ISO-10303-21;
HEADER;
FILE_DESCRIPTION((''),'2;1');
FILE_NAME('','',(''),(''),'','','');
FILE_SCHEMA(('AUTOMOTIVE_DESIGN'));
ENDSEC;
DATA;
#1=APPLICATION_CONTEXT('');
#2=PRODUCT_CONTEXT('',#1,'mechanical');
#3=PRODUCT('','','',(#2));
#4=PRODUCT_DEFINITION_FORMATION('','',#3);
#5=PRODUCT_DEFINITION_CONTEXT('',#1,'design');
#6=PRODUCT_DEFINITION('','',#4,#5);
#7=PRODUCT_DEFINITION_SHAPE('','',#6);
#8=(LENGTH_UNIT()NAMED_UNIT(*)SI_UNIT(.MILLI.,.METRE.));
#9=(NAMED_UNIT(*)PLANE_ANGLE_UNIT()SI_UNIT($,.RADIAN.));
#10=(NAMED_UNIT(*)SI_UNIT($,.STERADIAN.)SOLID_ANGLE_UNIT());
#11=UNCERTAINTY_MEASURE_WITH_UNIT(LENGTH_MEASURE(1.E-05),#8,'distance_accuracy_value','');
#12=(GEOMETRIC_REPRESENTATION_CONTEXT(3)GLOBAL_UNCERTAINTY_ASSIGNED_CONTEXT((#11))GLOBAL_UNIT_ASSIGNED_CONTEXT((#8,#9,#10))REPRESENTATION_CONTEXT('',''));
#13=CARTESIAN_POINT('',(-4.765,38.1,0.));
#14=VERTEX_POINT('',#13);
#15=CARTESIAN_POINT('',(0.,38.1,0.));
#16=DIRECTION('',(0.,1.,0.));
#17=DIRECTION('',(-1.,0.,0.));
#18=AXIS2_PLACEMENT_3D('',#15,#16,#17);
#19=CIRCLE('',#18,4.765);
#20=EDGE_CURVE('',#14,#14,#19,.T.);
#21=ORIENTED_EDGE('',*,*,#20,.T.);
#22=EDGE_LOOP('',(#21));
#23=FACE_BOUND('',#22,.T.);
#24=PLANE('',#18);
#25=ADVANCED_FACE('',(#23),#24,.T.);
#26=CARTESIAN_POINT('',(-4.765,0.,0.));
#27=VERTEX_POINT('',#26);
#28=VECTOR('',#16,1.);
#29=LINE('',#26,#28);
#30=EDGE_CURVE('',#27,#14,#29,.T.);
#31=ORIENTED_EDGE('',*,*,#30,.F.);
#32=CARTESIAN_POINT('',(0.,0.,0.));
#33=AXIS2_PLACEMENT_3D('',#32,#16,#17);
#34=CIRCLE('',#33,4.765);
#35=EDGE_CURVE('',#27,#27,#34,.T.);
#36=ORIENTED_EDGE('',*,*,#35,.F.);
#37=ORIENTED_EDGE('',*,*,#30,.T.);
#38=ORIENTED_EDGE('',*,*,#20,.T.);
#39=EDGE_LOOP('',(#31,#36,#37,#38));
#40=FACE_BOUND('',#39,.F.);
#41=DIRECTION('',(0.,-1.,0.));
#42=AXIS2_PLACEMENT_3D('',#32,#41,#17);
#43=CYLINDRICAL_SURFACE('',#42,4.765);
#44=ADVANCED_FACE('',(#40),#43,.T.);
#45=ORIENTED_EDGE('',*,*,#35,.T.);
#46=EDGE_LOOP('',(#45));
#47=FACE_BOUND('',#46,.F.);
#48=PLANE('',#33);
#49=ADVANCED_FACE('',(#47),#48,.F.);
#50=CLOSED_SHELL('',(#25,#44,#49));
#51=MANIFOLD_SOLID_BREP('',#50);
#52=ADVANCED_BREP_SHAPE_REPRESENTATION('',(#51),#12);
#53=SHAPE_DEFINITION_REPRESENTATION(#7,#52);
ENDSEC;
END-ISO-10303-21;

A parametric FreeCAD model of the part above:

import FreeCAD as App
import Part
import Sketcher

V = App.Vector
Q = App.Units.Quantity

doc = App.newDocument("Part")
body = doc.addObject("PartDesign::Body", "Body")

# Sketch on XZ plane
sketch1 = body.newObject("Sketcher::SketchObject", "Sketch")
sketch1.AttachmentSupport = (doc.getObject("XZ_Plane"), [""])
sketch1.MapMode = "FlatFace"
sketch1.addGeometry(Part.Circle(V(0, 0, 0), V(0, 0, 1), 4.765), False)
sketch1.addConstraint(Sketcher.Constraint("Coincident", 0, 3, -1, 1))
sketch1.addConstraint(Sketcher.Constraint("Diameter", 0, Q("0.3752 in")))
pad1 = body.newObject("PartDesign::Pad", "Pad")
pad1.Profile = sketch1
pad1.Length = Q("1.5 in")
pad1.Reversed = True

doc.recompute()
